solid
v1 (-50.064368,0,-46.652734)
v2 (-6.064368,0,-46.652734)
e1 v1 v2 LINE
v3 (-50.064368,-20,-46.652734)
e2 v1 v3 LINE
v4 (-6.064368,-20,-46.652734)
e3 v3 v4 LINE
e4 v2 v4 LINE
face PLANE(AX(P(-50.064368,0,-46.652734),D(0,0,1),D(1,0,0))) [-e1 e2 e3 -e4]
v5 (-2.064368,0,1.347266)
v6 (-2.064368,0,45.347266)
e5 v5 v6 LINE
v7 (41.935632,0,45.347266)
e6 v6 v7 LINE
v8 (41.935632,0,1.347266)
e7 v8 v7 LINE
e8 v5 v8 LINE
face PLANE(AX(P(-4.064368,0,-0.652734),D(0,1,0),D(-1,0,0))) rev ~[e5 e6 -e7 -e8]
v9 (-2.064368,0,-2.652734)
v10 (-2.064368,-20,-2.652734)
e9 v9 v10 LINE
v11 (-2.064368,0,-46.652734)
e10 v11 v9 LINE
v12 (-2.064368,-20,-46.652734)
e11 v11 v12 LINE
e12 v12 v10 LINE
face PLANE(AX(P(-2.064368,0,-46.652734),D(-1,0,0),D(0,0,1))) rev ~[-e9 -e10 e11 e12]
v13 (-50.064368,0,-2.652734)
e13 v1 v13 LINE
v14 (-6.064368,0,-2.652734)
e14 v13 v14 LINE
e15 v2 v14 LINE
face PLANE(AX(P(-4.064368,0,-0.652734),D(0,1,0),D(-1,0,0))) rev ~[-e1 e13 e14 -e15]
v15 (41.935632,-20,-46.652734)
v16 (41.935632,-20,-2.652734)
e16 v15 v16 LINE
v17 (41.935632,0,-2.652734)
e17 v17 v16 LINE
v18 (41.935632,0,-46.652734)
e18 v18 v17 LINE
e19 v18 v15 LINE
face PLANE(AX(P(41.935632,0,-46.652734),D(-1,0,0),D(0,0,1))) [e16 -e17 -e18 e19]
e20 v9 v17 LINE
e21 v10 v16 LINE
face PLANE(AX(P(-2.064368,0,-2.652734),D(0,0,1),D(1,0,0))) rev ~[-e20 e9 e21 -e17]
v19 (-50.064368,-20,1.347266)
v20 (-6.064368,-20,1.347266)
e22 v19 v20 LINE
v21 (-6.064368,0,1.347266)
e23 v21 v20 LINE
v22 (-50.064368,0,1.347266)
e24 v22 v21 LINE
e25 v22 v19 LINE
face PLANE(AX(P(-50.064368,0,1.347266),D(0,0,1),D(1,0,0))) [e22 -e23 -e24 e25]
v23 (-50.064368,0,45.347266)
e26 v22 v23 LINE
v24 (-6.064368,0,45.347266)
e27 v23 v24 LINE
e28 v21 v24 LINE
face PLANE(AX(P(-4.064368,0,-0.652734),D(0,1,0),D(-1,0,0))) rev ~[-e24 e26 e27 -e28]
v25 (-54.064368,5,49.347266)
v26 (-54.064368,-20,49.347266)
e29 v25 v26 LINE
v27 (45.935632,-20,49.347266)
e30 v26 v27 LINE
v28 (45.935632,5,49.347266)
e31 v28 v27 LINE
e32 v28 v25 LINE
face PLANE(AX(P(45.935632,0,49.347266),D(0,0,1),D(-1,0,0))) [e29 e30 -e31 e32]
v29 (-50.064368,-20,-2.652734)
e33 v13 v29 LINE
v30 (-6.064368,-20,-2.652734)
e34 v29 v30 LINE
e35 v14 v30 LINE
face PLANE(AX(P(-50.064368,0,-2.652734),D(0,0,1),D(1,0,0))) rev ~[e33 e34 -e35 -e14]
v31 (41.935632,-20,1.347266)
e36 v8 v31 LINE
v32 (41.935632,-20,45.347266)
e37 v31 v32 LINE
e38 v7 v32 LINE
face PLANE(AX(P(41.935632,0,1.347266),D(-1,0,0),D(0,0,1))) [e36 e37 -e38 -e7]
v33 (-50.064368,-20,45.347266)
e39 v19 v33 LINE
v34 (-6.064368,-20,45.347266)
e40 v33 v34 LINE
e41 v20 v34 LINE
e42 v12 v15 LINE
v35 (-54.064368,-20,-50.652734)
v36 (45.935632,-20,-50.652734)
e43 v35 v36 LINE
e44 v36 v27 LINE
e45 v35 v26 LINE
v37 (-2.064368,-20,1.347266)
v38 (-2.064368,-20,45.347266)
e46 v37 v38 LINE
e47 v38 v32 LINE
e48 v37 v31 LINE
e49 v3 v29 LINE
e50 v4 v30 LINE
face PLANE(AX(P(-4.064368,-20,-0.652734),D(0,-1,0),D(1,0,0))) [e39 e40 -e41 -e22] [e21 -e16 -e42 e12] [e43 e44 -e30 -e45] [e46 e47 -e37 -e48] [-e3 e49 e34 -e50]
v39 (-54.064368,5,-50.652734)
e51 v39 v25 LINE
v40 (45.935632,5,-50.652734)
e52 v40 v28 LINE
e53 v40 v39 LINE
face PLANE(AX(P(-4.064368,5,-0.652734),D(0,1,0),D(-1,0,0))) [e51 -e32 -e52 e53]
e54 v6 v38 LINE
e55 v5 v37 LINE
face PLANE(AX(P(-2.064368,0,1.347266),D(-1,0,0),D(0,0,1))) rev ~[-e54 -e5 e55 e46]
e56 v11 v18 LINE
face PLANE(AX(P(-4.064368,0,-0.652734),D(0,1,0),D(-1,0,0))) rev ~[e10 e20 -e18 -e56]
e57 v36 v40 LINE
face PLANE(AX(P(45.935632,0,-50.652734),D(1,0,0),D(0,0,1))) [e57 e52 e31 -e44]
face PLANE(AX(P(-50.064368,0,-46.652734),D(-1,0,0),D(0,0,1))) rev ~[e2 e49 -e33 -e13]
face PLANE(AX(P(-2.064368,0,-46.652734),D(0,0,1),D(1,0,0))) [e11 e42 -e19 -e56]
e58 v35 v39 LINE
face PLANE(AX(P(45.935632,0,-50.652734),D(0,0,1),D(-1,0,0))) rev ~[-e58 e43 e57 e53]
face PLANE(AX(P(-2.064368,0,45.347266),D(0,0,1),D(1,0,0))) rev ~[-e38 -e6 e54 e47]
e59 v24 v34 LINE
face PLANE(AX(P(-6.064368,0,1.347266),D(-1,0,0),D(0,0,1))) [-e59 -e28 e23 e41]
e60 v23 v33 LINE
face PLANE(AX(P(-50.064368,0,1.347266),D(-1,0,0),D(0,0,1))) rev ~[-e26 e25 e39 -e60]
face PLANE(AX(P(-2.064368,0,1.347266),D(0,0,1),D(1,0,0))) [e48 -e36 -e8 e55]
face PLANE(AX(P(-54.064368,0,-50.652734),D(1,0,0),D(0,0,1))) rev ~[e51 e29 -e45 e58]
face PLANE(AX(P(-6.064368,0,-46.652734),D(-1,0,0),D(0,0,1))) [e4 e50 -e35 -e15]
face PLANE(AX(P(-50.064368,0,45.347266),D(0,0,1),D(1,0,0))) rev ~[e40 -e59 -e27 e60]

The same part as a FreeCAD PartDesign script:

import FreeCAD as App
import Part
import Sketcher
from FreeCAD import Vector


def add_polygon(sketch, points):
    """Adds a closed chain of lines whose ends are joined by coincident constraints."""
    first, n = sketch.GeometryCount, len(points)
    for a, b in zip(points, points[1:] + points[:1]):
        sketch.addGeometry(Part.LineSegment(App.Vector(*a, 0), App.Vector(*b, 0)), False)
    for i in range(n):
        sketch.addConstraint(Sketcher.Constraint("Coincident", first + i, 2, first + (i + 1) % n, 1))

doc = App.newDocument("Part")
params = doc.addObject("Spreadsheet::Sheet", "Params")
for row, (alias, value) in enumerate([
    ("sketch1_width", "100 mm"),
    ("sketch1_width2", "44 mm"),
    ("pad1_length", "20 mm"),
    ("sketch2_width", "100 mm"),
    ("pad2_length", "5 mm"),
], start=1):
    params.set(f"A{row}", alias)
    params.set(f"B{row}", "=" + value)
    params.setAlias(f"B{row}", alias)

body = doc.addObject("PartDesign::Body", "Body")

# Sketch on XZ plane
sketch1 = body.newObject("Sketcher::SketchObject", "Sketch")
sketch1.AttachmentSupport = (doc.getObject("XZ_Plane"), [""])
sketch1.MapMode = "FlatFace"
add_polygon(sketch1, [(-54, 49), (-54, -51), (46, -51), (46, 49)])  # lines 0-3
add_polygon(sketch1, [(-6, -47), (-50, -47), (-50, -3), (-6, -3)])  # lines 4-7
add_polygon(sketch1, [(42, -47), (-2, -47), (-2, -3), (42, -3)])  # lines 8-11
add_polygon(sketch1, [(-6, 1), (-50, 1), (-50, 45), (-6, 45)])  # lines 12-15
add_polygon(sketch1, [(42, 1), (-2, 1), (-2, 45), (42, 45)])  # lines 16-19
sketch1.addConstraint(Sketcher.Constraint("Vertical", 0))
sketch1.addConstraint(Sketcher.Constraint("Horizontal", 1))
sketch1.addConstraint(Sketcher.Constraint("Vertical", 2))
sketch1.addConstraint(Sketcher.Constraint("Horizontal", 3))
sketch1.addConstraint(Sketcher.Constraint("Horizontal", 4))
sketch1.addConstraint(Sketcher.Constraint("Vertical", 5))
sketch1.addConstraint(Sketcher.Constraint("Horizontal", 6))
sketch1.addConstraint(Sketcher.Constraint("Vertical", 7))
sketch1.addConstraint(Sketcher.Constraint("Horizontal", 8))
sketch1.addConstraint(Sketcher.Constraint("Vertical", 9))
sketch1.addConstraint(Sketcher.Constraint("Horizontal", 10))
sketch1.addConstraint(Sketcher.Constraint("Vertical", 11))
sketch1.addConstraint(Sketcher.Constraint("Horizontal", 12))
sketch1.addConstraint(Sketcher.Constraint("Vertical", 13))
sketch1.addConstraint(Sketcher.Constraint("Horizontal", 14))
sketch1.addConstraint(Sketcher.Constraint("Vertical", 15))
sketch1.addConstraint(Sketcher.Constraint("Horizontal", 16))
sketch1.addConstraint(Sketcher.Constraint("Vertical", 17))
sketch1.addConstraint(Sketcher.Constraint("Horizontal", 18))
sketch1.addConstraint(Sketcher.Constraint("Vertical", 19))
sketch1.addConstraint(Sketcher.Constraint("Horizontal", 7, 2, 8, 2))
sketch1.addConstraint(Sketcher.Constraint("Horizontal", 6, 2, 9, 2))
sketch1.addConstraint(Sketcher.Constraint("Horizontal", 15, 2, 16, 2))
sketch1.addConstraint(Sketcher.Constraint("Horizontal", 14, 2, 17, 2))
sketch1.addConstraint(Sketcher.Constraint("Vertical", 5, 2, 12, 2))
sketch1.addConstraint(Sketcher.Constraint("Vertical", 7, 2, 14, 2))
sketch1.addConstraint(Sketcher.Constraint("Vertical", 9, 2, 16, 2))
sketch1.addConstraint(Sketcher.Constraint("Vertical", 11, 2, 18, 2))
sketch1.addConstraint(Sketcher.Constraint("Equal", 6, 8))
sketch1.addConstraint(Sketcher.Constraint("Equal", 3, 0))
sketch1.addConstraint(Sketcher.Constraint("Equal", 18, 5))
sketch1.addConstraint(Sketcher.Constraint("Equal", 11, 13))
sketch1.addConstraint(Sketcher.Constraint("DistanceX", 1, 1, 1, 2, 100.0))
sketch1.addConstraint(Sketcher.Constraint("DistanceX", 4, 2, 4, 1, 44.0))
sketch1.addConstraint(Sketcher.Constraint("DistanceX", 0, 2, 4, 2, 4.0))
sketch1.addConstraint(Sketcher.Constraint("DistanceY", 0, 2, 4, 2, 4.0))
sketch1.addConstraint(Sketcher.Constraint("DistanceX", 7, 2, 8, 2, 4.0))
sketch1.addConstraint(Sketcher.Constraint("DistanceY", 5, 2, 12, 2, 4.0))
sketch1.addConstraint(Sketcher.Constraint("DistanceX", 0, 2, -1, 1, 54.064368))
sketch1.addConstraint(Sketcher.Constraint("DistanceY", 0, 2, -1, 1, 50.652734))
sketch1.setExpression("Constraints[52]", "Params.sketch1_width")
sketch1.setExpression("Constraints[53]", "Params.sketch1_width2")
pad1 = body.newObject("PartDesign::Pad", "Pad")
pad1.Profile = sketch1
pad1.setExpression("Length", "Params.pad1_length")

# Sketch on XZ plane
sketch2 = body.newObject("Sketcher::SketchObject", "Sketch001")
sketch2.AttachmentSupport = (doc.getObject("XZ_Plane"), [""])
sketch2.MapMode = "FlatFace"
add_polygon(sketch2, [(46, 49), (46, -51), (-54, -51), (-54, 49)])  # lines 0-3
sketch2.addConstraint(Sketcher.Constraint("Vertical", 0))
sketch2.addConstraint(Sketcher.Constraint("Horizontal", 1))
sketch2.addConstraint(Sketcher.Constraint("Vertical", 2))
sketch2.addConstraint(Sketcher.Constraint("Horizontal", 3))
sketch2.addConstraint(Sketcher.Constraint("Equal", 3, 0))
sketch2.addConstraint(Sketcher.Constraint("DistanceX", 1, 2, 1, 1, 100.0))
sketch2.addConstraint(Sketcher.Constraint("DistanceX", -1, 1, 0, 2, 45.935632))
sketch2.addConstraint(Sketcher.Constraint("DistanceY", 0, 2, -1, 1, 50.652734))
sketch2.setExpression("Constraints[9]", "Params.sketch2_width")
pad2 = body.newObject("PartDesign::Pad", "Pad001")
pad2.Profile = sketch2
pad2.setExpression("Length", "Params.pad2_length")
pad2.Reversed = True

doc.recompute()
